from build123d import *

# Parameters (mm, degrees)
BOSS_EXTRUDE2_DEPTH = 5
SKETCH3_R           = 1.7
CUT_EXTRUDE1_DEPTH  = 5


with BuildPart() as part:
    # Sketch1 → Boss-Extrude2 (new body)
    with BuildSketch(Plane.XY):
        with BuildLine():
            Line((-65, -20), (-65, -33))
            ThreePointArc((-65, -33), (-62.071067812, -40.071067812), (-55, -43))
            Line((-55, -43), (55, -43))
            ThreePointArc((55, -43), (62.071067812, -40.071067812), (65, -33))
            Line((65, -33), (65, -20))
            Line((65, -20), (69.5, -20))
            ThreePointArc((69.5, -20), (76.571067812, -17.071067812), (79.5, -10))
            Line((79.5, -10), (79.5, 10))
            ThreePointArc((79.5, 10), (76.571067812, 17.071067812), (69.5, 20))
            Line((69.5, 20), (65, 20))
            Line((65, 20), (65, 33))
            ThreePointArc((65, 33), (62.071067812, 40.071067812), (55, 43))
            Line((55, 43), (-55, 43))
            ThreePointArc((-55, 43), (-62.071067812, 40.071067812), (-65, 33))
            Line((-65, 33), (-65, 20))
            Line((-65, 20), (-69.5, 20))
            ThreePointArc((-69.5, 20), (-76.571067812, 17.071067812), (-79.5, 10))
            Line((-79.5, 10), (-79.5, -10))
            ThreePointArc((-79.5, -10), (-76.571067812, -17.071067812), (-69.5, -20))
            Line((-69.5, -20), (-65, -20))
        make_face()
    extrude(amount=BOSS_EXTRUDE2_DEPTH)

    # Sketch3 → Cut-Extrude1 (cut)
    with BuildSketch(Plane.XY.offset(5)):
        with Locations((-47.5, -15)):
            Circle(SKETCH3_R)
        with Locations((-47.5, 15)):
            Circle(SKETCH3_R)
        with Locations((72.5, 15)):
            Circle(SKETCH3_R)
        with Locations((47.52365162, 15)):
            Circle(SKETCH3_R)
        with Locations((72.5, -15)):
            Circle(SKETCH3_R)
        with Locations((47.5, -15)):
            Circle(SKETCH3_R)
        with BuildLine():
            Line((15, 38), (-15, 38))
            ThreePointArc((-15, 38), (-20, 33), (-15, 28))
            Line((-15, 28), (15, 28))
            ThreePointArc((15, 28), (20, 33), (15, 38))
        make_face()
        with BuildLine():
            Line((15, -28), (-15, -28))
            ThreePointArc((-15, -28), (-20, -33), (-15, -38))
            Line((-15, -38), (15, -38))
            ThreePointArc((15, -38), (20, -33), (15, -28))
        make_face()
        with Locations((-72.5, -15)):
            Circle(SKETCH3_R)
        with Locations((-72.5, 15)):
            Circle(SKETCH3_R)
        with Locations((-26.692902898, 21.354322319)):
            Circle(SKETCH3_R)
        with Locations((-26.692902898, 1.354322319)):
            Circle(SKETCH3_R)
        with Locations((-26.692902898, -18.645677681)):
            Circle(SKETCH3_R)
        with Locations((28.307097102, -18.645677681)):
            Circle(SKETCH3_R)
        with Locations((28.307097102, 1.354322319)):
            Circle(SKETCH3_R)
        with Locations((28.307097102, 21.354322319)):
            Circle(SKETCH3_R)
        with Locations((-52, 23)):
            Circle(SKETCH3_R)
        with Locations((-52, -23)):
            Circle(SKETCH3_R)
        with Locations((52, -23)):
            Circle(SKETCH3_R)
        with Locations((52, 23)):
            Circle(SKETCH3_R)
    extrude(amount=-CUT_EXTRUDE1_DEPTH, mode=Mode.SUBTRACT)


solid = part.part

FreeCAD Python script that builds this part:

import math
import FreeCAD as App
import Part
import Sketcher

doc = App.newDocument("Part")
body = doc.addObject("PartDesign::Body", "Body")

sketch1 = body.newObject("Sketcher::SketchObject", "Sketch")
sketch1.AttachmentSupport = (doc.getObject("XY_Plane"), [""])
sketch1.MapMode = "FlatFace"
sketch1.addGeometry([
    Part.LineSegment(App.Vector(-65, -20, 0), App.Vector(-65, -33, 0)),
    Part.ArcOfCircle(Part.Circle(App.Vector(-55, -33, 0), App.Vector(0, 0, 1), 10), math.radians(180), math.radians(270)),
    Part.LineSegment(App.Vector(-55, -43, 0), App.Vector(55, -43, 0)),
    Part.ArcOfCircle(Part.Circle(App.Vector(55, -33, 0), App.Vector(0, 0, 1), 10), math.radians(-90), math.radians(0)),
    Part.LineSegment(App.Vector(65, -33, 0), App.Vector(65, -20, 0)),
    Part.LineSegment(App.Vector(65, -20, 0), App.Vector(69.5, -20, 0)),
    Part.ArcOfCircle(Part.Circle(App.Vector(69.5, -10, 0), App.Vector(0, 0, 1), 10), math.radians(-90), math.radians(0)),
    Part.LineSegment(App.Vector(79.5, -10, 0), App.Vector(79.5, 10, 0)),
    Part.ArcOfCircle(Part.Circle(App.Vector(69.5, 10, 0), App.Vector(0, 0, 1), 10), math.radians(0), math.radians(90)),
    Part.LineSegment(App.Vector(69.5, 20, 0), App.Vector(65, 20, 0)),
    Part.LineSegment(App.Vector(65, 20, 0), App.Vector(65, 33, 0)),
    Part.ArcOfCircle(Part.Circle(App.Vector(55, 33, 0), App.Vector(0, 0, 1), 10), math.radians(0), math.radians(90)),
    Part.LineSegment(App.Vector(55, 43, 0), App.Vector(-55, 43, 0)),
    Part.ArcOfCircle(Part.Circle(App.Vector(-55, 33, 0), App.Vector(0, 0, 1), 10), math.radians(90), math.radians(180)),
    Part.LineSegment(App.Vector(-65, 33, 0), App.Vector(-65, 20, 0)),
    Part.LineSegment(App.Vector(-65, 20, 0), App.Vector(-69.5, 20, 0)),
    Part.ArcOfCircle(Part.Circle(App.Vector(-69.5, 10, 0), App.Vector(0, 0, 1), 10), math.radians(90), math.radians(180)),
    Part.LineSegment(App.Vector(-79.5, 10, 0), App.Vector(-79.5, -10, 0)),
    Part.ArcOfCircle(Part.Circle(App.Vector(-69.5, -10, 0), App.Vector(0, 0, 1), 10), math.radians(180), math.radians(270)),
    Part.LineSegment(App.Vector(-69.5, -20, 0), App.Vector(-65, -20, 0)),
], False)
sketch1.addConstraint([
    Sketcher.Constraint("Tangent", 0, 2, 1, 1),
    Sketcher.Constraint("Tangent", 1, 2, 2, 1),
    Sketcher.Constraint("Tangent", 2, 2, 3, 1),
    Sketcher.Constraint("Tangent", 3, 2, 4, 1),
    Sketcher.Constraint("Coincident", 4, 2, 5, 1),
    Sketcher.Constraint("Tangent", 5, 2, 6, 1),
    Sketcher.Constraint("Tangent", 6, 2, 7, 1),
    Sketcher.Constraint("Tangent", 7, 2, 8, 1),
    Sketcher.Constraint("Tangent", 8, 2, 9, 1),
    Sketcher.Constraint("Coincident", 9, 2, 10, 1),
    Sketcher.Constraint("Tangent", 10, 2, 11, 1),
    Sketcher.Constraint("Tangent", 11, 2, 12, 1),
    Sketcher.Constraint("Tangent", 12, 2, 13, 1),
    Sketcher.Constraint("Tangent", 13, 2, 14, 1),
    Sketcher.Constraint("Coincident", 14, 2, 15, 1),
    Sketcher.Constraint("Tangent", 15, 2, 16, 1),
    Sketcher.Constraint("Tangent", 16, 2, 17, 1),
    Sketcher.Constraint("Tangent", 17, 2, 18, 1),
    Sketcher.Constraint("Tangent", 18, 2, 19, 1),
    Sketcher.Constraint("Coincident", 19, 2, 0, 1),
    Sketcher.Constraint("Vertical", 0),
    Sketcher.Constraint("Horizontal", 2),
    Sketcher.Constraint("Vertical", 4),
    Sketcher.Constraint("Horizontal", 5),
    Sketcher.Constraint("Vertical", 7),
    Sketcher.Constraint("Horizontal", 9),
    Sketcher.Constraint("Vertical", 10),
    Sketcher.Constraint("Horizontal", 12),
    Sketcher.Constraint("Vertical", 14),
    Sketcher.Constraint("Horizontal", 15),
    Sketcher.Constraint("Vertical", 17),
    Sketcher.Constraint("Horizontal", 19),
    Sketcher.Constraint("Equal", 1, 3),
    Sketcher.Constraint("Equal", 3, 6),
    Sketcher.Constraint("Equal", 6, 8),
    Sketcher.Constraint("Equal", 8, 11),
    Sketcher.Constraint("Equal", 11, 13),
    Sketcher.Constraint("Equal", 13, 16),
    Sketcher.Constraint("Equal", 16, 18),
    Sketcher.Constraint("Symmetric", 1, 3, 11, 3, -1, 1),
    Sketcher.Constraint("Symmetric", 6, 3, 16, 3, -1, 1),
    Sketcher.Constraint("Symmetric", 9, 2, 14, 2, -2),
    Sketcher.Constraint("Symmetric", 4, 2, 19, 2, -2),
    Sketcher.Constraint("Radius", 1, 10.0),
    Sketcher.Constraint("DistanceX", 2, 1, 2, 2, 110.0),
    Sketcher.Constraint("DistanceY", 0, 2, 0, 1, 13.0),
    Sketcher.Constraint("DistanceY", 7, 1, 7, 2, 20.0),
    Sketcher.Constraint("DistanceX", 5, 1, 5, 2, 4.5),
])
pad1 = body.newObject("PartDesign::Pad", "Pad")
pad1.Profile = sketch1
pad1.Length = 5

sketch2 = body.newObject("Sketcher::SketchObject", "Sketch001")
sketch2.AttachmentSupport = (doc.getObject("XY_Plane"), [""])
sketch2.MapMode = "FlatFace"
sketch2.AttachmentOffset = App.Placement(App.Vector(0, 0, 5), App.Rotation())
sketch2.addGeometry([
    Part.Circle(App.Vector(-47.5, -15, 0), App.Vector(0, 0, 1), 1.7),
    Part.Circle(App.Vector(-47.5, 15, 0), App.Vector(0, 0, 1), 1.7),
    Part.Circle(App.Vector(72.5, 15, 0), App.Vector(0, 0, 1), 1.7),
    Part.Circle(App.Vector(47.5, 15, 0), App.Vector(0, 0, 1), 1.7),
    Part.Circle(App.Vector(72.5, -15, 0), App.Vector(0, 0, 1), 1.7),
    Part.Circle(App.Vector(47.5, -15, 0), App.Vector(0, 0, 1), 1.7),
    Part.LineSegment(App.Vector(15, 38, 0), App.Vector(-15, 38, 0)),
    Part.ArcOfCircle(Part.Circle(App.Vector(-15, 33, 0), App.Vector(0, 0, 1), 5), math.radians(90), math.radians(270)),
    Part.LineSegment(App.Vector(-15, 28, 0), App.Vector(15, 28, 0)),
    Part.ArcOfCircle(Part.Circle(App.Vector(15, 33, 0), App.Vector(0, 0, 1), 5), math.radians(-90), math.radians(90)),
    Part.LineSegment(App.Vector(15, -28, 0), App.Vector(-15, -28, 0)),
    Part.ArcOfCircle(Part.Circle(App.Vector(-15, -33, 0), App.Vector(0, 0, 1), 5), math.radians(90), math.radians(270)),
    Part.LineSegment(App.Vector(-15, -38, 0), App.Vector(15, -38, 0)),
    Part.ArcOfCircle(Part.Circle(App.Vector(15, -33, 0), App.Vector(0, 0, 1), 5), math.radians(-90), math.radians(90)),
    Part.Circle(App.Vector(-72.5, -15, 0), App.Vector(0, 0, 1), 1.7),
    Part.Circle(App.Vector(-72.5, 15, 0), App.Vector(0, 0, 1), 1.7),
    Part.Circle(App.Vector(-26.7, 21.4, 0), App.Vector(0, 0, 1), 1.7),
    Part.Circle(App.Vector(-26.7, 1.4, 0), App.Vector(0, 0, 1), 1.7),
    Part.Circle(App.Vector(-26.7, -18.6, 0), App.Vector(0, 0, 1), 1.7),
    Part.Circle(App.Vector(28.3, -18.6, 0), App.Vector(0, 0, 1), 1.7),
    Part.Circle(App.Vector(28.3, 1.4, 0), App.Vector(0, 0, 1), 1.7),
    Part.Circle(App.Vector(28.3, 21.4, 0), App.Vector(0, 0, 1), 1.7),
    Part.Circle(App.Vector(-52, 23, 0), App.Vector(0, 0, 1), 1.7),
    Part.Circle(App.Vector(-52, -23, 0), App.Vector(0, 0, 1), 1.7),
    Part.Circle(App.Vector(52, -23, 0), App.Vector(0, 0, 1), 1.7),
    Part.Circle(App.Vector(52, 23, 0), App.Vector(0, 0, 1), 1.7),
], False)
sketch2.addConstraint([
    Sketcher.Constraint("Tangent", 6, 2, 7, 1),
    Sketcher.Constraint("Tangent", 7, 2, 8, 1),
    Sketcher.Constraint("Tangent", 8, 2, 9, 1),
    Sketcher.Constraint("Tangent", 9, 2, 6, 1),
    Sketcher.Constraint("Tangent", 10, 2, 11, 1),
    Sketcher.Constraint("Tangent", 11, 2, 12, 1),
    Sketcher.Constraint("Tangent", 12, 2, 13, 1),
    Sketcher.Constraint("Tangent", 13, 2, 10, 1),
    Sketcher.Constraint("Horizontal", 6),
    Sketcher.Constraint("Horizontal", 8),
    Sketcher.Constraint("Horizontal", 10),
    Sketcher.Constraint("Horizontal", 12),
    Sketcher.Constraint("Equal", 0, 1),
    Sketcher.Constraint("Equal", 1, 2),
    Sketcher.Constraint("Equal", 2, 3),
    Sketcher.Constraint("Equal", 3, 4),
    Sketcher.Constraint("Equal", 4, 5),
    Sketcher.Constraint("Equal", 9, 11),
    Sketcher.Constraint("Equal", 5, 14),
    Sketcher.Constraint("Equal", 14, 15),
    Sketcher.Constraint("Equal", 15, 16),
    Sketcher.Constraint("Equal", 16, 17),
    Sketcher.Constraint("Equal", 17, 18),
    Sketcher.Constraint("Equal", 18, 19),
    Sketcher.Constraint("Equal", 19, 20),
    Sketcher.Constraint("Equal", 20, 21),
    Sketcher.Constraint("Equal", 21, 22),
    Sketcher.Constraint("Equal", 22, 23),
    Sketcher.Constraint("Equal", 23, 24),
    Sketcher.Constraint("Equal", 24, 25),
    Sketcher.Constraint("Symmetric", 1, 3, 5, 3, -1, 1),
    Sketcher.Constraint("Symmetric", 9, 3, 11, 3, -1, 1),
    Sketcher.Constraint("Symmetric", 2, 3, 14, 3, -1, 1),
    Sketcher.Constraint("Symmetric", 4, 3, 15, 3, -1, 1),
    Sketcher.Constraint("Symmetric", 22, 3, 24, 3, -1, 1),
    Sketcher.Constraint("Symmetric", 23, 3, 25, 3, -1, 1),
    Sketcher.Constraint("Symmetric", 0, 3, 5, 3, -2),
    Sketcher.Constraint("Symmetric", 4, 3, 14, 3, -2),
    Sketcher.Constraint("Symmetric", 23, 3, 24, 3, -2),
    Sketcher.Constraint("Horizontal", 1, 3, 2, 3),
    Sketcher.Constraint("Horizontal", 2, 3, 3, 3),
    Sketcher.Constraint("Horizontal", 18, 3, 19, 3),
    Sketcher.Constraint("Horizontal", 17, 3, 20, 3),
    Sketcher.Constraint("Horizontal", 16, 3, 21, 3),
    Sketcher.Constraint("Vertical", 7, 3, 11, 3),
    Sketcher.Constraint("Vertical", 9, 3, 13, 3),
    Sketcher.Constraint("Vertical", 16, 3, 17, 3),
    Sketcher.Constraint("Vertical", 17, 3, 18, 3),
    Sketcher.Constraint("Vertical", 19, 3, 20, 3),
    Sketcher.Constraint("Vertical", 20, 3, 21, 3),
    Sketcher.Constraint("Radius", 7, 5.0),
    Sketcher.Constraint("Diameter", 0, 3.4),
    Sketcher.Constraint("DistanceX", 6, 2, 6, 1, 30.0),
    Sketcher.Constraint("DistanceY", 0, 3, -1, 1, 15.0),
    Sketcher.Constraint("DistanceY", -1, 1, 7, 3, 33.0),
    Sketcher.Constraint("DistanceX", 22, 3, -1, 1, 52.0),
    Sketcher.Constraint("DistanceY", -1, 1, 22, 3, 23.0),
    Sketcher.Constraint("DistanceX", 1, 3, 2, 3, 120.0),
    Sketcher.Constraint("DistanceX", 5, 3, 4, 3, 25.0),
    Sketcher.Constraint("DistanceY", 17, 3, 16, 3, 20.0),
    Sketcher.Constraint("DistanceY", 18, 3, 17, 3, 20.0),
    Sketcher.Constraint("DistanceX", -1, 1, 3, 3, 47.523652),
    Sketcher.Constraint("DistanceX", 16, 3, -1, 1, 26.692903),
    Sketcher.Constraint("DistanceY", -1, 1, 16, 3, 21.354322),
    Sketcher.Constraint("DistanceX", -1, 1, 19, 3, 28.307097),
])
pocket1 = body.newObject("PartDesign::Pocket", "Pocket")
pocket1.Profile = sketch2
pocket1.Length = 5

doc.recompute()
